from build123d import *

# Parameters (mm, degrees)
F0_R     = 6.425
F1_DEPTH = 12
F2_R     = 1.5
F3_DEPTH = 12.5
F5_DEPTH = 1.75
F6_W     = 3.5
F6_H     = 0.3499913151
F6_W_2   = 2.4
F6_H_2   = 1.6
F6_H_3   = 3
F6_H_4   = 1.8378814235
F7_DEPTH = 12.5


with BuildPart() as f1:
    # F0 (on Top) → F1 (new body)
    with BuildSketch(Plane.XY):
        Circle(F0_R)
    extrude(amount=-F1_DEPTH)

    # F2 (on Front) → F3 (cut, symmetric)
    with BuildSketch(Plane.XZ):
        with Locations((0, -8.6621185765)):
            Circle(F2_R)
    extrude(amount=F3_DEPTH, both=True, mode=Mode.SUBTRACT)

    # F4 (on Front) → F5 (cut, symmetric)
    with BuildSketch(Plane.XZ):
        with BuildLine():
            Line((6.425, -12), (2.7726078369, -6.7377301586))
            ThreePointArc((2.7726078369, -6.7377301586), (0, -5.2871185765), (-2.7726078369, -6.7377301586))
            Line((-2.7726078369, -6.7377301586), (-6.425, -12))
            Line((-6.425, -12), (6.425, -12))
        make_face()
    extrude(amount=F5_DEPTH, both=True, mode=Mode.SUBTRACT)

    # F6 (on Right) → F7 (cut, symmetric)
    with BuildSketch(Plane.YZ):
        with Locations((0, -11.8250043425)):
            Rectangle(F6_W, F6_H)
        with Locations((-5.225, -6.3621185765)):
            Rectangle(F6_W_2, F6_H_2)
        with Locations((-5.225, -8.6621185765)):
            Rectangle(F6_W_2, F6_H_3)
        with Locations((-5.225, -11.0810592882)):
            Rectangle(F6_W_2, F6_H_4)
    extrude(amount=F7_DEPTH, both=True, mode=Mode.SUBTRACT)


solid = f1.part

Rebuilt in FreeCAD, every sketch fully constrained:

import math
import FreeCAD as App
import Part
import Sketcher

doc = App.newDocument("Part")
body = doc.addObject("PartDesign::Body", "Body")

sketch1 = body.newObject("Sketcher::SketchObject", "Sketch")
sketch1.AttachmentSupport = (doc.getObject("XY_Plane"), [""])
sketch1.MapMode = "FlatFace"
sketch1.addGeometry(Part.Circle(App.Vector(0, 0, 0), App.Vector(0, 0, 1), 6), False)
sketch1.addConstraint(Sketcher.Constraint("Coincident", 0, 3, -1, 1))
sketch1.addConstraint(Sketcher.Constraint("Diameter", 0, 12.85))
pad1 = body.newObject("PartDesign::Pad", "Pad")
pad1.Profile = sketch1
pad1.Length = 12
pad1.Reversed = True

sketch2 = body.newObject("Sketcher::SketchObject", "Sketch001")
sketch2.AttachmentSupport = (doc.getObject("XZ_Plane"), [""])
sketch2.MapMode = "FlatFace"
sketch2.addGeometry(Part.Circle(App.Vector(0, -8.7, 0), App.Vector(0, 0, 1), 1.5), False)
sketch2.addConstraint(Sketcher.Constraint("PointOnObject", 0, 3, -2))
sketch2.addConstraint(Sketcher.Constraint("Diameter", 0, 3.0))
sketch2.addConstraint(Sketcher.Constraint("DistanceY", 0, 3, -1, 1, 8.662119))
pocket1 = body.newObject("PartDesign::Pocket", "Pocket")
pocket1.Profile = sketch2
pocket1.Length = 25
pocket1.Midplane = True

sketch3 = body.newObject("Sketcher::SketchObject", "Sketch002")
sketch3.AttachmentSupport = (doc.getObject("XZ_Plane"), [""])
sketch3.MapMode = "FlatFace"
sketch3.addGeometry(Part.LineSegment(App.Vector(6.4, -12, 0), App.Vector(2.8, -6.7, 0)), False)
sketch3.addGeometry(Part.ArcOfCircle(Part.Circle(App.Vector(0, -8.7, 0), App.Vector(0, 0, 1), 3.4), math.radians(35), math.radians(145)), False)
sketch3.addGeometry(Part.LineSegment(App.Vector(-2.8, -6.7, 0), App.Vector(-6.4, -12, 0)), False)
sketch3.addGeometry(Part.LineSegment(App.Vector(-6.4, -12, 0), App.Vector(6.4, -12, 0)), False)
sketch3.addConstraint(Sketcher.Constraint("Tangent", 0, 2, 1, 1))
sketch3.addConstraint(Sketcher.Constraint("Tangent", 1, 2, 2, 1))
sketch3.addConstraint(Sketcher.Constraint("Coincident", 2, 2, 3, 1))
sketch3.addConstraint(Sketcher.Constraint("Coincident", 3, 2, 0, 1))
sketch3.addConstraint(Sketcher.Constraint("Horizontal", 3))
sketch3.addConstraint(Sketcher.Constraint("Symmetric", 0, 2, 1, 2, -2))
sketch3.addConstraint(Sketcher.Constraint("DistanceY", 2, 2, -1, 1, 12.0))
sketch3.addConstraint(Sketcher.Constraint("Radius", 1, 3.375))
sketch3.addConstraint(Sketcher.Constraint("DistanceX", 3, 1, 3, 2, 12.85))
sketch3.addConstraint(Sketcher.Constraint("Distance", 0, 6.40558))
pocket2 = body.newObject("PartDesign::Pocket", "Pocket001")
pocket2.Profile = sketch3
pocket2.Length = 3.5
pocket2.Midplane = True

sketch4 = body.newObject("Sketcher::SketchObject", "Sketch003")
sketch4.AttachmentSupport = (doc.getObject("YZ_Plane"), [""])
sketch4.MapMode = "FlatFace"
sketch4.addGeometry(Part.LineSegment(App.Vector(-1.75, -11.65, 0), App.Vector(-1.75, -12, 0)), False)
sketch4.addGeometry(Part.LineSegment(App.Vector(-1.75, -12, 0), App.Vector(1.75, -12, 0)), False)
sketch4.addGeometry(Part.LineSegment(App.Vector(1.75, -12, 0), App.Vector(1.75, -11.65, 0)), False)
sketch4.addGeometry(Part.LineSegment(App.Vector(1.75, -11.65, 0), App.Vector(-1.75, -11.65, 0)), False)
sketch4.addGeometry(Part.LineSegment(App.Vector(-6.42, -5.56, 0), App.Vector(-6.42, -12, 0)), False)
sketch4.addGeometry(Part.LineSegment(App.Vector(-6.42, -12, 0), App.Vector(-4.03, -12, 0)), False)
sketch4.addGeometry(Part.LineSegment(App.Vector(-4.03, -12, 0), App.Vector(-4.03, -5.56, 0)), False)
sketch4.addGeometry(Part.LineSegment(App.Vector(-4.03, -5.56, 0), App.Vector(-6.42, -5.56, 0)), False)
sketch4.addConstraint(Sketcher.Constraint("Coincident", 0, 2, 1, 1))
sketch4.addConstraint(Sketcher.Constraint("Coincident", 1, 2, 2, 1))
sketch4.addConstraint(Sketcher.Constraint("Coincident", 2, 2, 3, 1))
sketch4.addConstraint(Sketcher.Constraint("Coincident", 3, 2, 0, 1))
sketch4.addConstraint(Sketcher.Constraint("Coincident", 4, 2, 5, 1))
sketch4.addConstraint(Sketcher.Constraint("Coincident", 5, 2, 6, 1))
sketch4.addConstraint(Sketcher.Constraint("Coincident", 6, 2, 7, 1))
sketch4.addConstraint(Sketcher.Constraint("Coincident", 7, 2, 4, 1))
sketch4.addConstraint(Sketcher.Constraint("Vertical", 0))
sketch4.addConstraint(Sketcher.Constraint("Horizontal", 1))
sketch4.addConstraint(Sketcher.Constraint("Vertical", 2))
sketch4.addConstraint(Sketcher.Constraint("Horizontal", 3))
sketch4.addConstraint(Sketcher.Constraint("Vertical", 4))
sketch4.addConstraint(Sketcher.Constraint("Horizontal", 5))
sketch4.addConstraint(Sketcher.Constraint("Vertical", 6))
sketch4.addConstraint(Sketcher.Constraint("Horizontal", 7))
sketch4.addConstraint(Sketcher.Constraint("Horizontal", 1, 2, 4, 2))
sketch4.addConstraint(Sketcher.Constraint("DistanceX", 1, 1, 1, 2, 3.5))
sketch4.addConstraint(Sketcher.Constraint("DistanceX", 5, 1, 5, 2, 2.4))
sketch4.addConstraint(Sketcher.Constraint("DistanceY", 0, 2, -1, 1, 12.0))
sketch4.addConstraint(Sketcher.Constraint("DistanceX", 0, 2, -1, 1, 1.75))
sketch4.addConstraint(Sketcher.Constraint("DistanceX", 4, 2, -1, 1, 6.425))
sketch4.addConstraint(Sketcher.Constraint("DistanceY", 0, 2, 0, 1, 0.349991))
sketch4.addConstraint(Sketcher.Constraint("DistanceY", 4, 2, 4, 1, 6.437881))
pocket3 = body.newObject("PartDesign::Pocket", "Pocket002")
pocket3.Profile = sketch4
pocket3.Length = 25
pocket3.Midplane = True

doc.recompute()
